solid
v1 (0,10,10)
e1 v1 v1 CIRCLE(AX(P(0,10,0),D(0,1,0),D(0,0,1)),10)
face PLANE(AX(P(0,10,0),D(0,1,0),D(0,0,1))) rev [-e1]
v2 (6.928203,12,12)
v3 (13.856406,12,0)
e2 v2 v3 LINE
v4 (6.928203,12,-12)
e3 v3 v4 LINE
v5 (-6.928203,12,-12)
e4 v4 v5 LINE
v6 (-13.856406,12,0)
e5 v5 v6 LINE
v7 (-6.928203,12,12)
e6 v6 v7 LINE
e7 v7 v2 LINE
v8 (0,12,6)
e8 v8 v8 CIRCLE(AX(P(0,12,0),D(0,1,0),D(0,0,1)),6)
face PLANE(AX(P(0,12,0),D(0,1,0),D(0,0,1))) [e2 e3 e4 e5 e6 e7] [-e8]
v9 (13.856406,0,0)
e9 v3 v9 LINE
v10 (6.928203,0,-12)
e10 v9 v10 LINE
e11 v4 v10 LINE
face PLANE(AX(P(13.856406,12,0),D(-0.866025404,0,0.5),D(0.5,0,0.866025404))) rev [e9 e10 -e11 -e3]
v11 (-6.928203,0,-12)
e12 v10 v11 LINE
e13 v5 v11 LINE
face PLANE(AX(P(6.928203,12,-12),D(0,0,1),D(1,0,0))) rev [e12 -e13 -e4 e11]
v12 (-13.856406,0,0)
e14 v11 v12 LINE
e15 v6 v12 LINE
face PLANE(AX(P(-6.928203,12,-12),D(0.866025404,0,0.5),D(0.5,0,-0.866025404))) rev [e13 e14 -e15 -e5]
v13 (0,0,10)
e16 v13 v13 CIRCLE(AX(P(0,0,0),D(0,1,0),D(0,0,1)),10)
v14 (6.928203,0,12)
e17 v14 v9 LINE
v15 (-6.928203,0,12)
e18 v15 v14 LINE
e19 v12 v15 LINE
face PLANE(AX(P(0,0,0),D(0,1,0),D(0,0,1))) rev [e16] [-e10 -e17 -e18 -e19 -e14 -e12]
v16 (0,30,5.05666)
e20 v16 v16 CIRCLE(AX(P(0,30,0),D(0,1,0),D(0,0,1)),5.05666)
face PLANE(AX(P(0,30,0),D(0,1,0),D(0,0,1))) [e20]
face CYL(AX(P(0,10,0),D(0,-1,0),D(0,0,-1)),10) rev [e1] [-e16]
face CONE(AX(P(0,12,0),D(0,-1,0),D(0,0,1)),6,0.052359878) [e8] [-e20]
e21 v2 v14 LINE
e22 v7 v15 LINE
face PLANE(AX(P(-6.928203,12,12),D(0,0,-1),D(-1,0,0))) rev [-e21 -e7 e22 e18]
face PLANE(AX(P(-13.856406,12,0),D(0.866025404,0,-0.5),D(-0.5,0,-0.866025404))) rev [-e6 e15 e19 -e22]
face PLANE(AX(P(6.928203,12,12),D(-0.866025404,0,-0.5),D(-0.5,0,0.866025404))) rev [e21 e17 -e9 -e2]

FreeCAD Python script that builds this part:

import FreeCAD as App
import Part
import Sketcher
Q = App.Units.Quantity


def add_polygon(sketch, points):
    """Adds a closed chain of lines whose ends are joined by coincident constraints."""
    first, n = sketch.GeometryCount, len(points)
    for a, b in zip(points, points[1:] + points[:1]):
        sketch.addGeometry(Part.LineSegment(App.Vector(*a, 0), App.Vector(*b, 0)), False)
    for i in range(n):
        sketch.addConstraint(Sketcher.Constraint("Coincident", first + i, 2, first + (i + 1) % n, 1))

doc = App.newDocument("Part")
params = doc.addObject("Spreadsheet::Sheet", "Params")
for row, (alias, value) in enumerate([
    ("pad1_length", "12 mm"),
    ("sketch2_diameter", "12 mm"),
    ("pad2_length", "18 mm"),
    ("pad2_taper", "-3 deg"),
    ("sketch3_diameter", "20 mm"),
    ("pocket1_length", "10 mm"),
], start=1):
    params.set(f"A{row}", alias)
    params.set(f"B{row}", "=" + value)
    params.setAlias(f"B{row}", alias)

body = doc.addObject("PartDesign::Body", "Body")

# Sketch on XZ plane
sketch1 = body.newObject("Sketcher::SketchObject", "Sketch")
sketch1.AttachmentSupport = (doc.getObject("XZ_Plane"), [""])
sketch1.MapMode = "FlatFace"
add_polygon(sketch1, [(14, 0), (7, -12), (-7, -12), (-14, 0), (-7, 12), (7, 12)])  # lines 0-5
sketch1.addConstraint(Sketcher.Constraint("Horizontal", 1))
sketch1.addConstraint(Sketcher.Constraint("Horizontal", 4))
sketch1.addConstraint(Sketcher.Constraint("Symmetric", 0, 2, 3, 2, -1, 1))
sketch1.addConstraint(Sketcher.Constraint("Symmetric", 2, 2, 5, 2, -1, 1))
sketch1.addConstraint(Sketcher.Constraint("PointOnObject", 2, 2, -1))
sketch1.addConstraint(Sketcher.Constraint("Parallel", 2, 5))
sketch1.addConstraint(Sketcher.Constraint("Vertical", 1, 2, 3, 2))
sketch1.addConstraint(Sketcher.Constraint("Angle", 0, Q("-120 deg")))
sketch1.addConstraint(Sketcher.Constraint("DistanceY", 0, 2, -1, 1, Q("12 mm")))
sketch1.addConstraint(Sketcher.Constraint("DistanceX", 1, 2, 1, 1, Q("13.856406 mm")))
pad1 = body.newObject("PartDesign::Pad", "Pad")
pad1.Profile = sketch1
pad1.setExpression("Length", "Params.pad1_length")
pad1.Reversed = True

# Sketch on XZ plane
sketch2 = body.newObject("Sketcher::SketchObject", "Sketch001")
sketch2.AttachmentSupport = (doc.getObject("XZ_Plane"), [""])
sketch2.MapMode = "FlatFace"
sketch2.AttachmentOffset = App.Placement(App.Vector(0, 0, -12), App.Rotation())
sketch2.addGeometry(Part.Circle(App.Vector(0, 0, 0), App.Vector(0, 0, 1), 6), False)
sketch2.addConstraint(Sketcher.Constraint("Coincident", 0, 3, -1, 1))
sketch2.addConstraint(Sketcher.Constraint("Diameter", 0, Q("12 mm")))
sketch2.setExpression("Constraints[1]", "Params.sketch2_diameter")
pad2 = body.newObject("PartDesign::Pad", "Pad001")
pad2.Profile = sketch2
pad2.setExpression("Length", "Params.pad2_length")
pad2.Reversed = True
pad2.setExpression("TaperAngle", "Params.pad2_taper")

# Sketch on XZ plane
sketch3 = body.newObject("Sketcher::SketchObject", "Sketch002")
sketch3.AttachmentSupport = (doc.getObject("XZ_Plane"), [""])
sketch3.MapMode = "FlatFace"
sketch3.addGeometry(Part.Circle(App.Vector(0, 0, 0), App.Vector(0, 0, 1), 10), False)
sketch3.addConstraint(Sketcher.Constraint("Coincident", 0, 3, -1, 1))
sketch3.addConstraint(Sketcher.Constraint("Diameter", 0, Q("20 mm")))
sketch3.setExpression("Constraints[1]", "Params.sketch3_diameter")
pocket1 = body.newObject("PartDesign::Pocket", "Pocket")
pocket1.Profile = sketch3
pocket1.setExpression("Length", "Params.pocket1_length")

doc.recompute()
